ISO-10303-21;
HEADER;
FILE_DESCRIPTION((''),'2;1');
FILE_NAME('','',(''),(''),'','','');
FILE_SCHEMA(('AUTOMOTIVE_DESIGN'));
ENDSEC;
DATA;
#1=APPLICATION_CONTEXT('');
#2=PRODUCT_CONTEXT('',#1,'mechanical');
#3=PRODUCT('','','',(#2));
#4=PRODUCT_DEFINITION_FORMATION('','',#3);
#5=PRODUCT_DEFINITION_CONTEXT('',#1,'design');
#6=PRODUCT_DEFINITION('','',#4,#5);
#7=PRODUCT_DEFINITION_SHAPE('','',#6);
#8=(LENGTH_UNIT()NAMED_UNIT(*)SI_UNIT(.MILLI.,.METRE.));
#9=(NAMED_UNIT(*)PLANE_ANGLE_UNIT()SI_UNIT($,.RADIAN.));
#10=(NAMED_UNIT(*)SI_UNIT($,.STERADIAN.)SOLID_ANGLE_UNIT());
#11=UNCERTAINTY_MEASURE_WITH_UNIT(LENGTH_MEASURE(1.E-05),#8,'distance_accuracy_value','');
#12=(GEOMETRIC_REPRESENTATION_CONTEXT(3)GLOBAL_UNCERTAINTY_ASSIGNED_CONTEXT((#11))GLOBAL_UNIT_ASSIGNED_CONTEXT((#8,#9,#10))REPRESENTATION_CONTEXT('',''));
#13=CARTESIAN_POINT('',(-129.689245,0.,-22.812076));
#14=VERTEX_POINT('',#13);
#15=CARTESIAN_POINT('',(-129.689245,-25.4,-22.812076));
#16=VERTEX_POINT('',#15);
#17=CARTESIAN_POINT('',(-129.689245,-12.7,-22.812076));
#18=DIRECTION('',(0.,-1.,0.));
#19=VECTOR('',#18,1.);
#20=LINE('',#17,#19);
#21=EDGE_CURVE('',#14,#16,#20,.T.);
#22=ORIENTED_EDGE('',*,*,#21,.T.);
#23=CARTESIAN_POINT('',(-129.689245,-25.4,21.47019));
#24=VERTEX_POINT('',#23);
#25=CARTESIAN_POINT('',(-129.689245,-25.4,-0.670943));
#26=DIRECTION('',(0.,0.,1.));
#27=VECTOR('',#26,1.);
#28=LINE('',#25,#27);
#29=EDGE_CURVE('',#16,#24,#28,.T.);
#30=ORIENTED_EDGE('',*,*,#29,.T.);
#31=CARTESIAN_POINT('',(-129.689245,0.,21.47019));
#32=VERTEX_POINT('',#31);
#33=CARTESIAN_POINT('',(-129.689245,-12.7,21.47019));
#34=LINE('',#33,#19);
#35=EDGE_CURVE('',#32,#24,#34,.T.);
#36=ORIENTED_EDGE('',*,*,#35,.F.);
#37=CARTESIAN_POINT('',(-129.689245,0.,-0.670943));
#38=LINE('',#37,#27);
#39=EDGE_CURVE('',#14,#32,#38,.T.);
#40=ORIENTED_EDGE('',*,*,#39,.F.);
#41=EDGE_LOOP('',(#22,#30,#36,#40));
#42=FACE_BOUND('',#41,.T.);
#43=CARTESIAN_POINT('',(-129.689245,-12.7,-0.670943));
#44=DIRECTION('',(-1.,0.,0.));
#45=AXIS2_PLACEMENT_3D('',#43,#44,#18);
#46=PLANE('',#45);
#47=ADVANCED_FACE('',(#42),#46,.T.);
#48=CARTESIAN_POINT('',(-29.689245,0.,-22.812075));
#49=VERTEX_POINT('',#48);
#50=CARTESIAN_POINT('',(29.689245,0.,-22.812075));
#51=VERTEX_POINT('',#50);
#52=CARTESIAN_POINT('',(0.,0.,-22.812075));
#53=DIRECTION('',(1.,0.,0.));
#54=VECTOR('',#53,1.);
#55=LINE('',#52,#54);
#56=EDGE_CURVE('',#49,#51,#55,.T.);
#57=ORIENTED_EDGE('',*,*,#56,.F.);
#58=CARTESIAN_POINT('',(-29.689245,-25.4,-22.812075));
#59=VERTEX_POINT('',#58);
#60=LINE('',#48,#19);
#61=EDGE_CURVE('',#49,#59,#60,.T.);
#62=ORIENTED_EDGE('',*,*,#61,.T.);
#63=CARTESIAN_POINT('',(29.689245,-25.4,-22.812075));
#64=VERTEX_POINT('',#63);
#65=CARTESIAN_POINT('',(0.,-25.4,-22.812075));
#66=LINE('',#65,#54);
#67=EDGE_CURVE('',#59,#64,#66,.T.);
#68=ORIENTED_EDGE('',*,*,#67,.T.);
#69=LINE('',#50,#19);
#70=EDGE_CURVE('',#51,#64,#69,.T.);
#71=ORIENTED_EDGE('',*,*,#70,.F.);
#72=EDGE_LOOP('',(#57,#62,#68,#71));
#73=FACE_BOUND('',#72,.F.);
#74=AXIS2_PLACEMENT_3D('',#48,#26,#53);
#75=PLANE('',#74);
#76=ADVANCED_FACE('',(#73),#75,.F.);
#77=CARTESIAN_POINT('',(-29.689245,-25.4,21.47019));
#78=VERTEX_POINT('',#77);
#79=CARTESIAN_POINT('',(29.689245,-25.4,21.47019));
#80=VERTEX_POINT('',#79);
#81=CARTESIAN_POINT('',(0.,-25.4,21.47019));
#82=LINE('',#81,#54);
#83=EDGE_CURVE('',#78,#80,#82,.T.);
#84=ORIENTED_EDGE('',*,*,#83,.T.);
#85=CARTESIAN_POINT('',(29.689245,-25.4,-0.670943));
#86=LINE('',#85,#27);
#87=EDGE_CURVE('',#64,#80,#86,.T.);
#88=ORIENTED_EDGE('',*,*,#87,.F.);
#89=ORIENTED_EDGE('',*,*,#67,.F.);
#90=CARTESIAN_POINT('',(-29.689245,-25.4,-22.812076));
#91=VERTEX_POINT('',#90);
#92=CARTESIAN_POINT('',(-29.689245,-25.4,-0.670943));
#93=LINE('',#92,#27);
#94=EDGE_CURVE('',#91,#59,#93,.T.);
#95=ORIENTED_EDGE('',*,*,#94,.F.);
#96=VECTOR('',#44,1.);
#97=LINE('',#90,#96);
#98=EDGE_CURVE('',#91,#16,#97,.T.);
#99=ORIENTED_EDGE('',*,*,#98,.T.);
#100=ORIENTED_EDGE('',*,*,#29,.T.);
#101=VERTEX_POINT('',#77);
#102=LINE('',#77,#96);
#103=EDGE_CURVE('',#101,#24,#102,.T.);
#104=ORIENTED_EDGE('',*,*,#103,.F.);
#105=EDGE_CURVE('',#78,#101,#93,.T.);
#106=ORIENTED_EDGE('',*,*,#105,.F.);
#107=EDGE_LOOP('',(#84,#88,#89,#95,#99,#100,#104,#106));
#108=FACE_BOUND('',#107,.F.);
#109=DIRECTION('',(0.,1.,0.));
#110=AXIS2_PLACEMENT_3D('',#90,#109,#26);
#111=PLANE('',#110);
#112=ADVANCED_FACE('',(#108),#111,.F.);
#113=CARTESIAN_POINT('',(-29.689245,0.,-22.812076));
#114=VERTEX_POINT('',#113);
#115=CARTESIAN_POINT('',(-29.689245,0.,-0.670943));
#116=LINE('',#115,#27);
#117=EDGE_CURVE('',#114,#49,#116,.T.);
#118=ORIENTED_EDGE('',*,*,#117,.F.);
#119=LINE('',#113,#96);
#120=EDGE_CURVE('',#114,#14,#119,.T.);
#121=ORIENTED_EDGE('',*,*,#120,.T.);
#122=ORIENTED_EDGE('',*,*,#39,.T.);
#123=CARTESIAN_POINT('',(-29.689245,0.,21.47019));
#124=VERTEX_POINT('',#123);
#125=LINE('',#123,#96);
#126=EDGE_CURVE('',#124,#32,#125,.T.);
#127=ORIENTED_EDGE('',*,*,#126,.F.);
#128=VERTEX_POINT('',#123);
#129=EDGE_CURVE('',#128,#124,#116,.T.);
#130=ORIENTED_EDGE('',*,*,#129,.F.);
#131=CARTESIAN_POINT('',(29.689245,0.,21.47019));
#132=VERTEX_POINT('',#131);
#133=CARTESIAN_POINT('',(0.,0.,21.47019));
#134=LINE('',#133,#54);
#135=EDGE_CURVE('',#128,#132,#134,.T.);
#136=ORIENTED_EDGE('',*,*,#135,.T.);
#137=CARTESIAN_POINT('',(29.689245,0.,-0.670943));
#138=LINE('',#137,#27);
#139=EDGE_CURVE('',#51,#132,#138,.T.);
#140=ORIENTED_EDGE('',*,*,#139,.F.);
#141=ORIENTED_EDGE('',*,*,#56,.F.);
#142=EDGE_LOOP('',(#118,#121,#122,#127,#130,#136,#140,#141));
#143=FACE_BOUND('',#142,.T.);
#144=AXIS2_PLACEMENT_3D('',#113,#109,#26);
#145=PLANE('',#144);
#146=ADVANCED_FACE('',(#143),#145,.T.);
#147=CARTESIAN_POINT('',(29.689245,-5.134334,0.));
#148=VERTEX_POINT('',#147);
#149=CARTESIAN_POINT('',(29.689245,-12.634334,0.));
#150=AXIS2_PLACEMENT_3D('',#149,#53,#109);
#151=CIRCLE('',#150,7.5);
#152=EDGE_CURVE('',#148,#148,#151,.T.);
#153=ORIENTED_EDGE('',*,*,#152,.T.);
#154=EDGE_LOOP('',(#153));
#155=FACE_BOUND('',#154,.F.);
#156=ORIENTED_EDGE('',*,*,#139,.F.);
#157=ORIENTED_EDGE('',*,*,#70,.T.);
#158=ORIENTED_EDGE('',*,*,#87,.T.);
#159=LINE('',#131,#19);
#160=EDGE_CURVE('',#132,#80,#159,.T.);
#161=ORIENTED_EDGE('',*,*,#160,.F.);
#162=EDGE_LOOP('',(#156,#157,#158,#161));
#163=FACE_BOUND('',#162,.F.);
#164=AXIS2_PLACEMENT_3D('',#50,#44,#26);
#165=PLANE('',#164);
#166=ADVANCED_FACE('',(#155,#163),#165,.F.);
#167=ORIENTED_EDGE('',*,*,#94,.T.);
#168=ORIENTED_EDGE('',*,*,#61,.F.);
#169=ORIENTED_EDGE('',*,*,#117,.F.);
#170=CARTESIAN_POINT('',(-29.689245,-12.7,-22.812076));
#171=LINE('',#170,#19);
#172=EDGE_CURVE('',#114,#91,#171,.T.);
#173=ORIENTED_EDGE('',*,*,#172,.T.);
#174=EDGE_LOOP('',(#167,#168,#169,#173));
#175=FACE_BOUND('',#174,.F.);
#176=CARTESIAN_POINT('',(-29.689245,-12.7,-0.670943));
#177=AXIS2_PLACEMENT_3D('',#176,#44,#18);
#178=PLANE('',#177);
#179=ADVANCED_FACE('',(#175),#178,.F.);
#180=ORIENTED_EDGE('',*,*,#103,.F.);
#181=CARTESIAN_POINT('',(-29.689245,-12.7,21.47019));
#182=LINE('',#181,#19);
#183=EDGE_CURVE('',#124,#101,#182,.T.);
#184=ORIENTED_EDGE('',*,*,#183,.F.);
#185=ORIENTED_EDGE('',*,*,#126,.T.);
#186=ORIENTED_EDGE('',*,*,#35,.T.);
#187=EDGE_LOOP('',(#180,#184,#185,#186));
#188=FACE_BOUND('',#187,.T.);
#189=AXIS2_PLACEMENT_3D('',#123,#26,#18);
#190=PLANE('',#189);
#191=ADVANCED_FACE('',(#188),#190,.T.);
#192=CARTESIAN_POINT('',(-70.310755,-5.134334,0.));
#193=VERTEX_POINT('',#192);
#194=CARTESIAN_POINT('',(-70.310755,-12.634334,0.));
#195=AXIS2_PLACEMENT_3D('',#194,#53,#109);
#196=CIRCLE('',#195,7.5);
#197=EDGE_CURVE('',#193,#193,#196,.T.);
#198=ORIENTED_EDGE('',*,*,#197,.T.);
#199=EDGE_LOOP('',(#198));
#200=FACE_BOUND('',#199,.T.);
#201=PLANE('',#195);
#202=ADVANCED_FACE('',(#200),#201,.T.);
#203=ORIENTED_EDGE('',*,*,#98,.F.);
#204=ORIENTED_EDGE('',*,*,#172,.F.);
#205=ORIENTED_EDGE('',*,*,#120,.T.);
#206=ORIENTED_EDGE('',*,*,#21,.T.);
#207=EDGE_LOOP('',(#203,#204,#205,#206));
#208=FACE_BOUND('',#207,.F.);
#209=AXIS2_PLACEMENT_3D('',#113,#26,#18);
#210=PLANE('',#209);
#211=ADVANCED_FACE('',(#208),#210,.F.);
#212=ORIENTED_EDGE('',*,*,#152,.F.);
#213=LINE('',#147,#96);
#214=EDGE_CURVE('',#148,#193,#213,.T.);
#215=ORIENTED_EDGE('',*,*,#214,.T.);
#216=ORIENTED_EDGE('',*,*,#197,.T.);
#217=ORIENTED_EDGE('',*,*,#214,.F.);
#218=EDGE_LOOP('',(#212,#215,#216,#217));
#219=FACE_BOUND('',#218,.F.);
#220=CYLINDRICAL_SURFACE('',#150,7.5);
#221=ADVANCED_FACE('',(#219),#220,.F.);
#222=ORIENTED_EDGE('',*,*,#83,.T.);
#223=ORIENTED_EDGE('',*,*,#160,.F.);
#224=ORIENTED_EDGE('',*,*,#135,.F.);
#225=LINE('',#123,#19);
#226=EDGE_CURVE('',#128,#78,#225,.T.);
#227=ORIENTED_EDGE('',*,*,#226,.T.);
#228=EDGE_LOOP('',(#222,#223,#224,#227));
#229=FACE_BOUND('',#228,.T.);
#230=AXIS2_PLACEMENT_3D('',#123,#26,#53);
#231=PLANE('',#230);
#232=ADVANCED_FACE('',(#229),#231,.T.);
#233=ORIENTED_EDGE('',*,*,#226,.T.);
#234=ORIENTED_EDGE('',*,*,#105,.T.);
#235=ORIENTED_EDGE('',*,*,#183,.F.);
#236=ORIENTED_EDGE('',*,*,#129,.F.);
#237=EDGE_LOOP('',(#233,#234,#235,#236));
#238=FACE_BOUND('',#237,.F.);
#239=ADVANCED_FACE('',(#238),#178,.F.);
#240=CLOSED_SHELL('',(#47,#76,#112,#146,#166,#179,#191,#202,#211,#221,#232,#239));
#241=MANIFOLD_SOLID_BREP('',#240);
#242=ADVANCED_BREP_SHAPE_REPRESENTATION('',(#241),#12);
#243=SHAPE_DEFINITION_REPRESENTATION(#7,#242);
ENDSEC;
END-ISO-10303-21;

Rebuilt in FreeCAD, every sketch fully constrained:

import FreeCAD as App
import Part
import Sketcher

V = App.Vector
Q = App.Units.Quantity


def add_polygon(sketch, points):
    """Adds a closed chain of lines whose ends are joined by coincident constraints."""
    first, n = sketch.GeometryCount, len(points)
    for a, b in zip(points, points[1:] + points[:1]):
        sketch.addGeometry(Part.LineSegment(App.Vector(*a, 0), App.Vector(*b, 0)), False)
    for i in range(n):
        sketch.addConstraint(Sketcher.Constraint("Coincident", first + i, 2, first + (i + 1) % n, 1))

doc = App.newDocument("Part")
body = doc.addObject("PartDesign::Body", "Body")

sketch1 = body.newObject("Sketcher::SketchObject", "Sketch")
sketch1.AttachmentSupport = (doc.getObject("XZ_Plane"), [""])
sketch1.MapMode = "FlatFace"
add_polygon(sketch1, [(-30, 21), (-30, -23), (30, -23), (30, 21)])
sketch1.addConstraint([
    Sketcher.Constraint("Vertical", 0),
    Sketcher.Constraint("Horizontal", 1),
    Sketcher.Constraint("Vertical", 2),
    Sketcher.Constraint("Horizontal", 3),
    Sketcher.Constraint("DistanceX", 1, 1, 1, 2, Q("59.37849 mm")),
    Sketcher.Constraint("DistanceY", 0, 2, 0, 1, Q("44.282265 mm")),
    Sketcher.Constraint("DistanceY", -1, 1, 2, 2, Q("21.47019 mm")),
    Sketcher.Constraint("DistanceX", 0, 2, -1, 1, Q("29.689245 mm")),
])
pad1 = body.newObject("PartDesign::Pad", "Pad")
pad1.Profile = sketch1
pad1.Length = 25.4

sketch2 = body.newObject("Sketcher::SketchObject", "Sketch001")
sketch2.AttachmentSupport = (doc.getObject("YZ_Plane"), [""])
sketch2.MapMode = "FlatFace"
sketch2.AttachmentOffset = App.Placement(V(0, 0, -29.689245), App.Rotation())
add_polygon(sketch2, [(0, 21), (0, -23), (-25, -23), (-25, 21)])
sketch2.addConstraint([
    Sketcher.Constraint("Vertical", 0),
    Sketcher.Constraint("Horizontal", 1),
    Sketcher.Constraint("Vertical", 2),
    Sketcher.Constraint("Horizontal", 3),
    Sketcher.Constraint("PointOnObject", 0, 2, -2),
    Sketcher.Constraint("DistanceX", 1, 2, 1, 1, Q("25.4 mm")),
    Sketcher.Constraint("DistanceY", 0, 2, 0, 1, Q("44.282266 mm")),
    Sketcher.Constraint("DistanceY", -1, 1, 2, 2, Q("21.47019 mm")),
])
pad2 = body.newObject("PartDesign::Pad", "Pad001")
pad2.Profile = sketch2
pad2.Length = 100
pad2.Reversed = True

sketch3 = body.newObject("Sketcher::SketchObject", "Sketch002")
sketch3.AttachmentSupport = (doc.getObject("YZ_Plane"), [""])
sketch3.MapMode = "FlatFace"
sketch3.AttachmentOffset = App.Placement(V(0, 0, 29.689245), App.Rotation())
sketch3.addGeometry(Part.Circle(V(-13, 0, 0), V(0, 0, 1), 8), False)
sketch3.addConstraint([
    Sketcher.Constraint("PointOnObject", 0, 3, -1),
    Sketcher.Constraint("Diameter", 0, Q("15 mm")),
    Sketcher.Constraint("DistanceX", 0, 3, -1, 1, Q("12.634334 mm")),
])
pocket1 = body.newObject("PartDesign::Pocket", "Pocket")
pocket1.Profile = sketch3
pocket1.Length = 100

doc.recompute()
